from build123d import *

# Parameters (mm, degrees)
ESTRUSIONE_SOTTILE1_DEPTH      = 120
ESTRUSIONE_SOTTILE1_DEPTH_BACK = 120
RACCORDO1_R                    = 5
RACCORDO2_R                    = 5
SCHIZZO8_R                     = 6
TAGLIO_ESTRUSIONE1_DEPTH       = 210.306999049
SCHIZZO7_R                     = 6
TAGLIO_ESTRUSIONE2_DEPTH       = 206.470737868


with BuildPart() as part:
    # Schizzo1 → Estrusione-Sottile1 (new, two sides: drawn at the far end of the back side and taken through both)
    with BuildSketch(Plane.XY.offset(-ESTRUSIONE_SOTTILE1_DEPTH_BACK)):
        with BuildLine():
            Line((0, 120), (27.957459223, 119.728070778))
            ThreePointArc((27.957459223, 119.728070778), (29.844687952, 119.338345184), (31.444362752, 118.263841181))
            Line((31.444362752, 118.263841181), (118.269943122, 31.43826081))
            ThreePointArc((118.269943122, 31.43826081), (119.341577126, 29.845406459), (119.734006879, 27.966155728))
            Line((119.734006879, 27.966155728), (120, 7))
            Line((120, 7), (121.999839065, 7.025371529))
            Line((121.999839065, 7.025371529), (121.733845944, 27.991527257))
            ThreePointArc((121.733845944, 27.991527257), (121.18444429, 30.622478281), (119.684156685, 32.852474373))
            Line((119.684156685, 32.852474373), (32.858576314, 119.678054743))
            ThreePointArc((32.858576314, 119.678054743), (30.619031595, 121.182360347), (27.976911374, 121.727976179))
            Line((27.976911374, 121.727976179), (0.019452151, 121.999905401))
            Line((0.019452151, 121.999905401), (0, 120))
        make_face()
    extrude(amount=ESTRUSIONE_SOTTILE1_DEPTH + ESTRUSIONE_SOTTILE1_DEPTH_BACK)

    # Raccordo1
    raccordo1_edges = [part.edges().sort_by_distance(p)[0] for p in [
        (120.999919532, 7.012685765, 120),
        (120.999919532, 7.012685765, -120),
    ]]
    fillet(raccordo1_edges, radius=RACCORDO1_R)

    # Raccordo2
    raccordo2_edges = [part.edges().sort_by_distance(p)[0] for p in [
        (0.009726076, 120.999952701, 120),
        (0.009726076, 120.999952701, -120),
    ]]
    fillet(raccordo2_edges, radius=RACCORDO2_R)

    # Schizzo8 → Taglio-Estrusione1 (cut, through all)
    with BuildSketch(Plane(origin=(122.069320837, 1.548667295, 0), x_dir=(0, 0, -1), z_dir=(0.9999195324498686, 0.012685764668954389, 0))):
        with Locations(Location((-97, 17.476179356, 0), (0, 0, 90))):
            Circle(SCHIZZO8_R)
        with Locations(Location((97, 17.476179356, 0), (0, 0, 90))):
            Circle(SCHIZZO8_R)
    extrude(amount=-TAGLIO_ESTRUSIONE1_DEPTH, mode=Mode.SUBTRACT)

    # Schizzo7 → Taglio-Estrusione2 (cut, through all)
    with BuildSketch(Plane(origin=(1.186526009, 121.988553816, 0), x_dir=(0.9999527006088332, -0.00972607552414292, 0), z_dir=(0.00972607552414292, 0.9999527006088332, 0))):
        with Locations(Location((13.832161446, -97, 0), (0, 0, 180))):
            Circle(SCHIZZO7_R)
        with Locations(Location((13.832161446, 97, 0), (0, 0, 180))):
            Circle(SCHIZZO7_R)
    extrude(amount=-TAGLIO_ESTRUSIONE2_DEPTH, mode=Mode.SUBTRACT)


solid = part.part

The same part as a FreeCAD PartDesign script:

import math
import FreeCAD as App
import Part
import Sketcher
from FreeCAD import Vector
Q = App.Units.Quantity


def edges_at(feature, points):
    """Names of the edges that pass closest to the given points."""
    edges = feature.Shape.Edges
    near = lambda p: min(range(len(edges)), key=lambda i: edges[i].distToShape(Part.Vertex(*p))[0])
    return sorted({f"Edge{near(p) + 1}" for p in points})

doc = App.newDocument("Part")
params = doc.addObject("Spreadsheet::Sheet", "Params")
for row, (alias, value) in enumerate([
    ("sketch1_radius", "5 mm"),
    ("sketch1_radius2", "7 mm"),
    ("pad1_length", "120 mm"),
    ("pad1_length2", "120 mm"),
    ("fillet_radius", "5 mm"),
    ("fillet2_radius", "5 mm"),
    ("sketch2_diameter", "12 mm"),
    ("sketch3_diameter", "12 mm"),
], start=1):
    params.set(f"A{row}", alias)
    params.set(f"B{row}", "=" + value)
    params.setAlias(f"B{row}", alias)

body = doc.addObject("PartDesign::Body", "Body")

# Sketch on XY plane
sketch1 = body.newObject("Sketcher::SketchObject", "Sketch")
sketch1.AttachmentSupport = (doc.getObject("XY_Plane"), [""])
sketch1.MapMode = "FlatFace"
sketch1.addGeometry(Part.LineSegment(Vector(0, 120, 0), Vector(28, 119.7, 0)), False)
sketch1.addGeometry(Part.ArcOfCircle(Part.Circle(Vector(27.9, 114.7, 0), Vector(0, 0, 1), 5), math.radians(45), math.radians(89)), False)
sketch1.addGeometry(Part.LineSegment(Vector(31.4, 118.3, 0), Vector(118.3, 31.4, 0)), False)
sketch1.addGeometry(Part.ArcOfCircle(Part.Circle(Vector(114.7, 27.9, 0), Vector(0, 0, 1), 5), math.radians(1), math.radians(45)), False)
sketch1.addGeometry(Part.LineSegment(Vector(119.7, 28, 0), Vector(120, 7, 0)), False)
sketch1.addGeometry(Part.LineSegment(Vector(120, 7, 0), Vector(122, 7, 0)), False)
sketch1.addGeometry(Part.LineSegment(Vector(122, 7, 0), Vector(121.7, 28, 0)), False)
sketch1.addGeometry(Part.ArcOfCircle(Part.Circle(Vector(114.7, 27.9, 0), Vector(0, 0, 1), 7), math.radians(1), math.radians(45)), False)
sketch1.addGeometry(Part.LineSegment(Vector(119.7, 32.9, 0), Vector(32.9, 119.7, 0)), False)
sketch1.addGeometry(Part.ArcOfCircle(Part.Circle(Vector(27.9, 114.7, 0), Vector(0, 0, 1), 7), math.radians(45), math.radians(89)), False)
sketch1.addGeometry(Part.LineSegment(Vector(28, 121.7, 0), Vector(0, 122, 0)), False)
sketch1.addGeometry(Part.LineSegment(Vector(0, 122, 0), Vector(0, 120, 0)), False)
sketch1.addConstraint(Sketcher.Constraint("Tangent", 0, 2, 1, 2))
sketch1.addConstraint(Sketcher.Constraint("Tangent", 1, 1, 2, 1))
sketch1.addConstraint(Sketcher.Constraint("Tangent", 2, 2, 3, 2))
sketch1.addConstraint(Sketcher.Constraint("Tangent", 3, 1, 4, 1))
sketch1.addConstraint(Sketcher.Constraint("Coincident", 4, 2, 5, 1))
sketch1.addConstraint(Sketcher.Constraint("Coincident", 5, 2, 6, 1))
sketch1.addConstraint(Sketcher.Constraint("Tangent", 6, 2, 7, 1))
sketch1.addConstraint(Sketcher.Constraint("Tangent", 7, 2, 8, 1))
sketch1.addConstraint(Sketcher.Constraint("Tangent", 8, 2, 9, 1))
sketch1.addConstraint(Sketcher.Constraint("Tangent", 9, 2, 10, 1))
sketch1.addConstraint(Sketcher.Constraint("Coincident", 10, 2, 11, 1))
sketch1.addConstraint(Sketcher.Constraint("Coincident", 11, 2, 0, 1))
sketch1.addConstraint(Sketcher.Constraint("Coincident", 7, 3, 3, 3))
sketch1.addConstraint(Sketcher.Constraint("Coincident", 9, 3, 1, 3))
sketch1.addConstraint(Sketcher.Constraint("Equal", 1, 3))
sketch1.addConstraint(Sketcher.Constraint("Equal", 7, 9))
sketch1.addConstraint(Sketcher.Constraint("PointOnObject", 11, 2, -2))
sketch1.addConstraint(Sketcher.Constraint("Perpendicular", 4, 5))
sketch1.addConstraint(Sketcher.Constraint("Perpendicular", 5, 6))
sketch1.addConstraint(Sketcher.Constraint("Parallel", 0, 10))
sketch1.addConstraint(Sketcher.Constraint("Perpendicular", 10, 11))
sketch1.addConstraint(Sketcher.Constraint("Radius", 1, Q("5 mm")))
sketch1.addConstraint(Sketcher.Constraint("Radius", 7, Q("7 mm")))
sketch1.addConstraint(Sketcher.Constraint("Angle", 2, Q("-45 deg")))
sketch1.addConstraint(Sketcher.Constraint("DistanceX", -1, 1, 4, 2, Q("120 mm")))
sketch1.addConstraint(Sketcher.Constraint("DistanceY", -1, 1, 4, 2, Q("7 mm")))
sketch1.addConstraint(Sketcher.Constraint("DistanceY", -1, 1, 11, 2, Q("120 mm")))
sketch1.addConstraint(Sketcher.Constraint("DistanceY", 3, 3, 6, 2, Q("0.0888 mm")))
sketch1.addConstraint(Sketcher.Constraint("DistanceY", 9, 3, 10, 2, Q("7.271598 mm")))
sketch1.addConstraint(Sketcher.Constraint("Distance", 0, Q("27.958782 mm")))
sketch1.setExpression("Constraints[21]", "Params.sketch1_radius")
sketch1.setExpression("Constraints[22]", "Params.sketch1_radius2")
pad1 = body.newObject("PartDesign::Pad", "Pad")
pad1.Profile = sketch1
pad1.Type = "TwoLengths"
pad1.setExpression("Length", "Params.pad1_length")
pad1.setExpression("Length2", "Params.pad1_length2")
doc.recompute()

fillet = body.newObject("PartDesign::Fillet", "Fillet")
fillet.Base = (pad1, edges_at(pad1, [(121, 7.013, 120), (121, 7.013, -120)]))
fillet.setExpression("Radius", "Params.fillet_radius")
doc.recompute()

fillet2 = body.newObject("PartDesign::Fillet", "Fillet001")
fillet2.Base = (fillet, edges_at(fillet, [(0.01, 121, 120), (0.01, 121, -120)]))
fillet2.setExpression("Radius", "Params.fillet2_radius")

# Sketch on an angled plane
sketch2 = body.newObject("Sketcher::SketchObject", "Sketch001")
sketch2.Placement = App.Placement(Vector(122.069321, 1.548667, 0), App.Rotation(Vector(0, 0, -1), Vector(-0.012685765, 0.999919532, 0), Vector(0.999919532, 0.012685765, 0), "ZXY"))
sketch2.addGeometry(Part.Circle(Vector(-97, 17, 0), Vector(0, 0, 1), 6), False)
sketch2.addGeometry(Part.Circle(Vector(97, 17, 0), Vector(0, 0, 1), 6), False)
sketch2.addConstraint(Sketcher.Constraint("Equal", 0, 1))
sketch2.addConstraint(Sketcher.Constraint("Symmetric", 0, 3, 1, 3, -2))
sketch2.addConstraint(Sketcher.Constraint("Diameter", 0, Q("12 mm")))
sketch2.addConstraint(Sketcher.Constraint("DistanceX", 0, 3, -1, 1, Q("97 mm")))
sketch2.addConstraint(Sketcher.Constraint("DistanceY", -1, 1, 0, 3, Q("17.476179 mm")))
sketch2.setExpression("Constraints[2]", "Params.sketch2_diameter")
pocket1 = body.newObject("PartDesign::Pocket", "Pocket")
pocket1.Profile = sketch2
pocket1.Type = "ThroughAll"

# Sketch on an angled plane
sketch3 = body.newObject("Sketcher::SketchObject", "Sketch002")
sketch3.Placement = App.Placement(Vector(1.186526, 121.988554, 0), App.Rotation(Vector(0.999952701, -0.009726076, 0), Vector(0, 0, -1.000000001), Vector(0.009726076, 0.999952701, 0), "ZXY"))
sketch3.addGeometry(Part.Circle(Vector(14, -97, 0), Vector(0, 0, 1), 6), False)
sketch3.addGeometry(Part.Circle(Vector(14, 97, 0), Vector(0, 0, 1), 6), False)
sketch3.addConstraint(Sketcher.Constraint("Equal", 0, 1))
sketch3.addConstraint(Sketcher.Constraint("Symmetric", 0, 3, 1, 3, -1))
sketch3.addConstraint(Sketcher.Constraint("Diameter", 0, Q("12 mm")))
sketch3.addConstraint(Sketcher.Constraint("DistanceY", 0, 3, -1, 1, Q("97 mm")))
sketch3.addConstraint(Sketcher.Constraint("DistanceX", -1, 1, 0, 3, Q("13.832161 mm")))
sketch3.setExpression("Constraints[2]", "Params.sketch3_diameter")
pocket2 = body.newObject("PartDesign::Pocket", "Pocket001")
pocket2.Profile = sketch3
pocket2.Type = "ThroughAll"

doc.recompute()
